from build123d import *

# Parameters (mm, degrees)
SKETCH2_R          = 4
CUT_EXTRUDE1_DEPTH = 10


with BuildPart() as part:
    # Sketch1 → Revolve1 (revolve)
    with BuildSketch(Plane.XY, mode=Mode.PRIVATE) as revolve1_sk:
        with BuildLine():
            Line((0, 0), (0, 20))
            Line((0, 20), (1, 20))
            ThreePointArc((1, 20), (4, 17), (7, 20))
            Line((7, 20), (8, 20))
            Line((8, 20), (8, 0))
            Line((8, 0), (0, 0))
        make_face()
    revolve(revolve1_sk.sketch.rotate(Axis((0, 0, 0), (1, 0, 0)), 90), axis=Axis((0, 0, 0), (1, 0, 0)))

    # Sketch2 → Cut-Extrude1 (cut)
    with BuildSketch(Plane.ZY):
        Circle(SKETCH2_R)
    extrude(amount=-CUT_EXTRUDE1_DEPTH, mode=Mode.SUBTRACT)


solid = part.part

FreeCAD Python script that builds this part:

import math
import FreeCAD as App
import Part
import Sketcher
from FreeCAD import Vector

doc = App.newDocument("Part")
body = doc.addObject("PartDesign::Body", "Body")

# Sketch on XY plane
sketch1 = body.newObject("Sketcher::SketchObject", "Sketch")
sketch1.AttachmentSupport = (doc.getObject("XY_Plane"), [""])
sketch1.MapMode = "FlatFace"
sketch1.addGeometry(Part.LineSegment(Vector(0, 20, 0), Vector(0, 0, 0)), False)
sketch1.addGeometry(Part.LineSegment(Vector(0, 0, 0), Vector(8, 0, 0)), False)
sketch1.addGeometry(Part.LineSegment(Vector(8, 0, 0), Vector(8, 20, 0)), False)
sketch1.addGeometry(Part.LineSegment(Vector(8, 20, 0), Vector(7, 20, 0)), False)
sketch1.addGeometry(Part.ArcOfCircle(Part.Circle(Vector(4, 20, 0), Vector(0, 0, 1), 3), math.radians(180), math.radians(360)), False)
sketch1.addGeometry(Part.LineSegment(Vector(1, 20, 0), Vector(0, 20, 0)), False)
sketch1.addConstraint(Sketcher.Constraint("Coincident", 0, 2, 1, 1))
sketch1.addConstraint(Sketcher.Constraint("Coincident", 1, 2, 2, 1))
sketch1.addConstraint(Sketcher.Constraint("Coincident", 2, 2, 3, 1))
sketch1.addConstraint(Sketcher.Constraint("Coincident", 3, 2, 4, 2))
sketch1.addConstraint(Sketcher.Constraint("Coincident", 4, 1, 5, 1))
sketch1.addConstraint(Sketcher.Constraint("Coincident", 5, 2, 0, 1))
sketch1.addConstraint(Sketcher.Constraint("Vertical", 0))
sketch1.addConstraint(Sketcher.Constraint("Horizontal", 1))
sketch1.addConstraint(Sketcher.Constraint("Vertical", 2))
sketch1.addConstraint(Sketcher.Constraint("Horizontal", 3))
sketch1.addConstraint(Sketcher.Constraint("Horizontal", 5))
sketch1.addConstraint(Sketcher.Constraint("Coincident", 0, 2, -1, 1))
sketch1.addConstraint(Sketcher.Constraint("Horizontal", 4, 3, 2, 2))
sketch1.addConstraint(Sketcher.Constraint("Horizontal", 3, 2, 4, 1))
sketch1.addConstraint(Sketcher.Constraint("Equal", 3, 5))
sketch1.addConstraint(Sketcher.Constraint("Radius", 4, 3.0))
sketch1.addConstraint(Sketcher.Constraint("DistanceX", 1, 1, 1, 2, 8.0))
sketch1.addConstraint(Sketcher.Constraint("DistanceY", 0, 2, 0, 1, 20.0))
revolution = body.newObject("PartDesign::Revolution", "Revolution")
revolution.Profile = sketch1
revolution.ReferenceAxis = (sketch1, ["H_Axis"])
revolution.Angle = 360

# Sketch on YZ plane
sketch2 = body.newObject("Sketcher::SketchObject", "Sketch001")
sketch2.AttachmentSupport = (doc.getObject("YZ_Plane"), [""])
sketch2.MapMode = "FlatFace"
sketch2.addGeometry(Part.Circle(Vector(0, 0, 0), Vector(0, 0, 1), 4), False)
sketch2.addConstraint(Sketcher.Constraint("Coincident", 0, 3, -1, 1))
sketch2.addConstraint(Sketcher.Constraint("Diameter", 0, 8.0))
pocket1 = body.newObject("PartDesign::Pocket", "Pocket")
pocket1.Profile = sketch2
pocket1.Length = 10
pocket1.Reversed = True

doc.recompute()
